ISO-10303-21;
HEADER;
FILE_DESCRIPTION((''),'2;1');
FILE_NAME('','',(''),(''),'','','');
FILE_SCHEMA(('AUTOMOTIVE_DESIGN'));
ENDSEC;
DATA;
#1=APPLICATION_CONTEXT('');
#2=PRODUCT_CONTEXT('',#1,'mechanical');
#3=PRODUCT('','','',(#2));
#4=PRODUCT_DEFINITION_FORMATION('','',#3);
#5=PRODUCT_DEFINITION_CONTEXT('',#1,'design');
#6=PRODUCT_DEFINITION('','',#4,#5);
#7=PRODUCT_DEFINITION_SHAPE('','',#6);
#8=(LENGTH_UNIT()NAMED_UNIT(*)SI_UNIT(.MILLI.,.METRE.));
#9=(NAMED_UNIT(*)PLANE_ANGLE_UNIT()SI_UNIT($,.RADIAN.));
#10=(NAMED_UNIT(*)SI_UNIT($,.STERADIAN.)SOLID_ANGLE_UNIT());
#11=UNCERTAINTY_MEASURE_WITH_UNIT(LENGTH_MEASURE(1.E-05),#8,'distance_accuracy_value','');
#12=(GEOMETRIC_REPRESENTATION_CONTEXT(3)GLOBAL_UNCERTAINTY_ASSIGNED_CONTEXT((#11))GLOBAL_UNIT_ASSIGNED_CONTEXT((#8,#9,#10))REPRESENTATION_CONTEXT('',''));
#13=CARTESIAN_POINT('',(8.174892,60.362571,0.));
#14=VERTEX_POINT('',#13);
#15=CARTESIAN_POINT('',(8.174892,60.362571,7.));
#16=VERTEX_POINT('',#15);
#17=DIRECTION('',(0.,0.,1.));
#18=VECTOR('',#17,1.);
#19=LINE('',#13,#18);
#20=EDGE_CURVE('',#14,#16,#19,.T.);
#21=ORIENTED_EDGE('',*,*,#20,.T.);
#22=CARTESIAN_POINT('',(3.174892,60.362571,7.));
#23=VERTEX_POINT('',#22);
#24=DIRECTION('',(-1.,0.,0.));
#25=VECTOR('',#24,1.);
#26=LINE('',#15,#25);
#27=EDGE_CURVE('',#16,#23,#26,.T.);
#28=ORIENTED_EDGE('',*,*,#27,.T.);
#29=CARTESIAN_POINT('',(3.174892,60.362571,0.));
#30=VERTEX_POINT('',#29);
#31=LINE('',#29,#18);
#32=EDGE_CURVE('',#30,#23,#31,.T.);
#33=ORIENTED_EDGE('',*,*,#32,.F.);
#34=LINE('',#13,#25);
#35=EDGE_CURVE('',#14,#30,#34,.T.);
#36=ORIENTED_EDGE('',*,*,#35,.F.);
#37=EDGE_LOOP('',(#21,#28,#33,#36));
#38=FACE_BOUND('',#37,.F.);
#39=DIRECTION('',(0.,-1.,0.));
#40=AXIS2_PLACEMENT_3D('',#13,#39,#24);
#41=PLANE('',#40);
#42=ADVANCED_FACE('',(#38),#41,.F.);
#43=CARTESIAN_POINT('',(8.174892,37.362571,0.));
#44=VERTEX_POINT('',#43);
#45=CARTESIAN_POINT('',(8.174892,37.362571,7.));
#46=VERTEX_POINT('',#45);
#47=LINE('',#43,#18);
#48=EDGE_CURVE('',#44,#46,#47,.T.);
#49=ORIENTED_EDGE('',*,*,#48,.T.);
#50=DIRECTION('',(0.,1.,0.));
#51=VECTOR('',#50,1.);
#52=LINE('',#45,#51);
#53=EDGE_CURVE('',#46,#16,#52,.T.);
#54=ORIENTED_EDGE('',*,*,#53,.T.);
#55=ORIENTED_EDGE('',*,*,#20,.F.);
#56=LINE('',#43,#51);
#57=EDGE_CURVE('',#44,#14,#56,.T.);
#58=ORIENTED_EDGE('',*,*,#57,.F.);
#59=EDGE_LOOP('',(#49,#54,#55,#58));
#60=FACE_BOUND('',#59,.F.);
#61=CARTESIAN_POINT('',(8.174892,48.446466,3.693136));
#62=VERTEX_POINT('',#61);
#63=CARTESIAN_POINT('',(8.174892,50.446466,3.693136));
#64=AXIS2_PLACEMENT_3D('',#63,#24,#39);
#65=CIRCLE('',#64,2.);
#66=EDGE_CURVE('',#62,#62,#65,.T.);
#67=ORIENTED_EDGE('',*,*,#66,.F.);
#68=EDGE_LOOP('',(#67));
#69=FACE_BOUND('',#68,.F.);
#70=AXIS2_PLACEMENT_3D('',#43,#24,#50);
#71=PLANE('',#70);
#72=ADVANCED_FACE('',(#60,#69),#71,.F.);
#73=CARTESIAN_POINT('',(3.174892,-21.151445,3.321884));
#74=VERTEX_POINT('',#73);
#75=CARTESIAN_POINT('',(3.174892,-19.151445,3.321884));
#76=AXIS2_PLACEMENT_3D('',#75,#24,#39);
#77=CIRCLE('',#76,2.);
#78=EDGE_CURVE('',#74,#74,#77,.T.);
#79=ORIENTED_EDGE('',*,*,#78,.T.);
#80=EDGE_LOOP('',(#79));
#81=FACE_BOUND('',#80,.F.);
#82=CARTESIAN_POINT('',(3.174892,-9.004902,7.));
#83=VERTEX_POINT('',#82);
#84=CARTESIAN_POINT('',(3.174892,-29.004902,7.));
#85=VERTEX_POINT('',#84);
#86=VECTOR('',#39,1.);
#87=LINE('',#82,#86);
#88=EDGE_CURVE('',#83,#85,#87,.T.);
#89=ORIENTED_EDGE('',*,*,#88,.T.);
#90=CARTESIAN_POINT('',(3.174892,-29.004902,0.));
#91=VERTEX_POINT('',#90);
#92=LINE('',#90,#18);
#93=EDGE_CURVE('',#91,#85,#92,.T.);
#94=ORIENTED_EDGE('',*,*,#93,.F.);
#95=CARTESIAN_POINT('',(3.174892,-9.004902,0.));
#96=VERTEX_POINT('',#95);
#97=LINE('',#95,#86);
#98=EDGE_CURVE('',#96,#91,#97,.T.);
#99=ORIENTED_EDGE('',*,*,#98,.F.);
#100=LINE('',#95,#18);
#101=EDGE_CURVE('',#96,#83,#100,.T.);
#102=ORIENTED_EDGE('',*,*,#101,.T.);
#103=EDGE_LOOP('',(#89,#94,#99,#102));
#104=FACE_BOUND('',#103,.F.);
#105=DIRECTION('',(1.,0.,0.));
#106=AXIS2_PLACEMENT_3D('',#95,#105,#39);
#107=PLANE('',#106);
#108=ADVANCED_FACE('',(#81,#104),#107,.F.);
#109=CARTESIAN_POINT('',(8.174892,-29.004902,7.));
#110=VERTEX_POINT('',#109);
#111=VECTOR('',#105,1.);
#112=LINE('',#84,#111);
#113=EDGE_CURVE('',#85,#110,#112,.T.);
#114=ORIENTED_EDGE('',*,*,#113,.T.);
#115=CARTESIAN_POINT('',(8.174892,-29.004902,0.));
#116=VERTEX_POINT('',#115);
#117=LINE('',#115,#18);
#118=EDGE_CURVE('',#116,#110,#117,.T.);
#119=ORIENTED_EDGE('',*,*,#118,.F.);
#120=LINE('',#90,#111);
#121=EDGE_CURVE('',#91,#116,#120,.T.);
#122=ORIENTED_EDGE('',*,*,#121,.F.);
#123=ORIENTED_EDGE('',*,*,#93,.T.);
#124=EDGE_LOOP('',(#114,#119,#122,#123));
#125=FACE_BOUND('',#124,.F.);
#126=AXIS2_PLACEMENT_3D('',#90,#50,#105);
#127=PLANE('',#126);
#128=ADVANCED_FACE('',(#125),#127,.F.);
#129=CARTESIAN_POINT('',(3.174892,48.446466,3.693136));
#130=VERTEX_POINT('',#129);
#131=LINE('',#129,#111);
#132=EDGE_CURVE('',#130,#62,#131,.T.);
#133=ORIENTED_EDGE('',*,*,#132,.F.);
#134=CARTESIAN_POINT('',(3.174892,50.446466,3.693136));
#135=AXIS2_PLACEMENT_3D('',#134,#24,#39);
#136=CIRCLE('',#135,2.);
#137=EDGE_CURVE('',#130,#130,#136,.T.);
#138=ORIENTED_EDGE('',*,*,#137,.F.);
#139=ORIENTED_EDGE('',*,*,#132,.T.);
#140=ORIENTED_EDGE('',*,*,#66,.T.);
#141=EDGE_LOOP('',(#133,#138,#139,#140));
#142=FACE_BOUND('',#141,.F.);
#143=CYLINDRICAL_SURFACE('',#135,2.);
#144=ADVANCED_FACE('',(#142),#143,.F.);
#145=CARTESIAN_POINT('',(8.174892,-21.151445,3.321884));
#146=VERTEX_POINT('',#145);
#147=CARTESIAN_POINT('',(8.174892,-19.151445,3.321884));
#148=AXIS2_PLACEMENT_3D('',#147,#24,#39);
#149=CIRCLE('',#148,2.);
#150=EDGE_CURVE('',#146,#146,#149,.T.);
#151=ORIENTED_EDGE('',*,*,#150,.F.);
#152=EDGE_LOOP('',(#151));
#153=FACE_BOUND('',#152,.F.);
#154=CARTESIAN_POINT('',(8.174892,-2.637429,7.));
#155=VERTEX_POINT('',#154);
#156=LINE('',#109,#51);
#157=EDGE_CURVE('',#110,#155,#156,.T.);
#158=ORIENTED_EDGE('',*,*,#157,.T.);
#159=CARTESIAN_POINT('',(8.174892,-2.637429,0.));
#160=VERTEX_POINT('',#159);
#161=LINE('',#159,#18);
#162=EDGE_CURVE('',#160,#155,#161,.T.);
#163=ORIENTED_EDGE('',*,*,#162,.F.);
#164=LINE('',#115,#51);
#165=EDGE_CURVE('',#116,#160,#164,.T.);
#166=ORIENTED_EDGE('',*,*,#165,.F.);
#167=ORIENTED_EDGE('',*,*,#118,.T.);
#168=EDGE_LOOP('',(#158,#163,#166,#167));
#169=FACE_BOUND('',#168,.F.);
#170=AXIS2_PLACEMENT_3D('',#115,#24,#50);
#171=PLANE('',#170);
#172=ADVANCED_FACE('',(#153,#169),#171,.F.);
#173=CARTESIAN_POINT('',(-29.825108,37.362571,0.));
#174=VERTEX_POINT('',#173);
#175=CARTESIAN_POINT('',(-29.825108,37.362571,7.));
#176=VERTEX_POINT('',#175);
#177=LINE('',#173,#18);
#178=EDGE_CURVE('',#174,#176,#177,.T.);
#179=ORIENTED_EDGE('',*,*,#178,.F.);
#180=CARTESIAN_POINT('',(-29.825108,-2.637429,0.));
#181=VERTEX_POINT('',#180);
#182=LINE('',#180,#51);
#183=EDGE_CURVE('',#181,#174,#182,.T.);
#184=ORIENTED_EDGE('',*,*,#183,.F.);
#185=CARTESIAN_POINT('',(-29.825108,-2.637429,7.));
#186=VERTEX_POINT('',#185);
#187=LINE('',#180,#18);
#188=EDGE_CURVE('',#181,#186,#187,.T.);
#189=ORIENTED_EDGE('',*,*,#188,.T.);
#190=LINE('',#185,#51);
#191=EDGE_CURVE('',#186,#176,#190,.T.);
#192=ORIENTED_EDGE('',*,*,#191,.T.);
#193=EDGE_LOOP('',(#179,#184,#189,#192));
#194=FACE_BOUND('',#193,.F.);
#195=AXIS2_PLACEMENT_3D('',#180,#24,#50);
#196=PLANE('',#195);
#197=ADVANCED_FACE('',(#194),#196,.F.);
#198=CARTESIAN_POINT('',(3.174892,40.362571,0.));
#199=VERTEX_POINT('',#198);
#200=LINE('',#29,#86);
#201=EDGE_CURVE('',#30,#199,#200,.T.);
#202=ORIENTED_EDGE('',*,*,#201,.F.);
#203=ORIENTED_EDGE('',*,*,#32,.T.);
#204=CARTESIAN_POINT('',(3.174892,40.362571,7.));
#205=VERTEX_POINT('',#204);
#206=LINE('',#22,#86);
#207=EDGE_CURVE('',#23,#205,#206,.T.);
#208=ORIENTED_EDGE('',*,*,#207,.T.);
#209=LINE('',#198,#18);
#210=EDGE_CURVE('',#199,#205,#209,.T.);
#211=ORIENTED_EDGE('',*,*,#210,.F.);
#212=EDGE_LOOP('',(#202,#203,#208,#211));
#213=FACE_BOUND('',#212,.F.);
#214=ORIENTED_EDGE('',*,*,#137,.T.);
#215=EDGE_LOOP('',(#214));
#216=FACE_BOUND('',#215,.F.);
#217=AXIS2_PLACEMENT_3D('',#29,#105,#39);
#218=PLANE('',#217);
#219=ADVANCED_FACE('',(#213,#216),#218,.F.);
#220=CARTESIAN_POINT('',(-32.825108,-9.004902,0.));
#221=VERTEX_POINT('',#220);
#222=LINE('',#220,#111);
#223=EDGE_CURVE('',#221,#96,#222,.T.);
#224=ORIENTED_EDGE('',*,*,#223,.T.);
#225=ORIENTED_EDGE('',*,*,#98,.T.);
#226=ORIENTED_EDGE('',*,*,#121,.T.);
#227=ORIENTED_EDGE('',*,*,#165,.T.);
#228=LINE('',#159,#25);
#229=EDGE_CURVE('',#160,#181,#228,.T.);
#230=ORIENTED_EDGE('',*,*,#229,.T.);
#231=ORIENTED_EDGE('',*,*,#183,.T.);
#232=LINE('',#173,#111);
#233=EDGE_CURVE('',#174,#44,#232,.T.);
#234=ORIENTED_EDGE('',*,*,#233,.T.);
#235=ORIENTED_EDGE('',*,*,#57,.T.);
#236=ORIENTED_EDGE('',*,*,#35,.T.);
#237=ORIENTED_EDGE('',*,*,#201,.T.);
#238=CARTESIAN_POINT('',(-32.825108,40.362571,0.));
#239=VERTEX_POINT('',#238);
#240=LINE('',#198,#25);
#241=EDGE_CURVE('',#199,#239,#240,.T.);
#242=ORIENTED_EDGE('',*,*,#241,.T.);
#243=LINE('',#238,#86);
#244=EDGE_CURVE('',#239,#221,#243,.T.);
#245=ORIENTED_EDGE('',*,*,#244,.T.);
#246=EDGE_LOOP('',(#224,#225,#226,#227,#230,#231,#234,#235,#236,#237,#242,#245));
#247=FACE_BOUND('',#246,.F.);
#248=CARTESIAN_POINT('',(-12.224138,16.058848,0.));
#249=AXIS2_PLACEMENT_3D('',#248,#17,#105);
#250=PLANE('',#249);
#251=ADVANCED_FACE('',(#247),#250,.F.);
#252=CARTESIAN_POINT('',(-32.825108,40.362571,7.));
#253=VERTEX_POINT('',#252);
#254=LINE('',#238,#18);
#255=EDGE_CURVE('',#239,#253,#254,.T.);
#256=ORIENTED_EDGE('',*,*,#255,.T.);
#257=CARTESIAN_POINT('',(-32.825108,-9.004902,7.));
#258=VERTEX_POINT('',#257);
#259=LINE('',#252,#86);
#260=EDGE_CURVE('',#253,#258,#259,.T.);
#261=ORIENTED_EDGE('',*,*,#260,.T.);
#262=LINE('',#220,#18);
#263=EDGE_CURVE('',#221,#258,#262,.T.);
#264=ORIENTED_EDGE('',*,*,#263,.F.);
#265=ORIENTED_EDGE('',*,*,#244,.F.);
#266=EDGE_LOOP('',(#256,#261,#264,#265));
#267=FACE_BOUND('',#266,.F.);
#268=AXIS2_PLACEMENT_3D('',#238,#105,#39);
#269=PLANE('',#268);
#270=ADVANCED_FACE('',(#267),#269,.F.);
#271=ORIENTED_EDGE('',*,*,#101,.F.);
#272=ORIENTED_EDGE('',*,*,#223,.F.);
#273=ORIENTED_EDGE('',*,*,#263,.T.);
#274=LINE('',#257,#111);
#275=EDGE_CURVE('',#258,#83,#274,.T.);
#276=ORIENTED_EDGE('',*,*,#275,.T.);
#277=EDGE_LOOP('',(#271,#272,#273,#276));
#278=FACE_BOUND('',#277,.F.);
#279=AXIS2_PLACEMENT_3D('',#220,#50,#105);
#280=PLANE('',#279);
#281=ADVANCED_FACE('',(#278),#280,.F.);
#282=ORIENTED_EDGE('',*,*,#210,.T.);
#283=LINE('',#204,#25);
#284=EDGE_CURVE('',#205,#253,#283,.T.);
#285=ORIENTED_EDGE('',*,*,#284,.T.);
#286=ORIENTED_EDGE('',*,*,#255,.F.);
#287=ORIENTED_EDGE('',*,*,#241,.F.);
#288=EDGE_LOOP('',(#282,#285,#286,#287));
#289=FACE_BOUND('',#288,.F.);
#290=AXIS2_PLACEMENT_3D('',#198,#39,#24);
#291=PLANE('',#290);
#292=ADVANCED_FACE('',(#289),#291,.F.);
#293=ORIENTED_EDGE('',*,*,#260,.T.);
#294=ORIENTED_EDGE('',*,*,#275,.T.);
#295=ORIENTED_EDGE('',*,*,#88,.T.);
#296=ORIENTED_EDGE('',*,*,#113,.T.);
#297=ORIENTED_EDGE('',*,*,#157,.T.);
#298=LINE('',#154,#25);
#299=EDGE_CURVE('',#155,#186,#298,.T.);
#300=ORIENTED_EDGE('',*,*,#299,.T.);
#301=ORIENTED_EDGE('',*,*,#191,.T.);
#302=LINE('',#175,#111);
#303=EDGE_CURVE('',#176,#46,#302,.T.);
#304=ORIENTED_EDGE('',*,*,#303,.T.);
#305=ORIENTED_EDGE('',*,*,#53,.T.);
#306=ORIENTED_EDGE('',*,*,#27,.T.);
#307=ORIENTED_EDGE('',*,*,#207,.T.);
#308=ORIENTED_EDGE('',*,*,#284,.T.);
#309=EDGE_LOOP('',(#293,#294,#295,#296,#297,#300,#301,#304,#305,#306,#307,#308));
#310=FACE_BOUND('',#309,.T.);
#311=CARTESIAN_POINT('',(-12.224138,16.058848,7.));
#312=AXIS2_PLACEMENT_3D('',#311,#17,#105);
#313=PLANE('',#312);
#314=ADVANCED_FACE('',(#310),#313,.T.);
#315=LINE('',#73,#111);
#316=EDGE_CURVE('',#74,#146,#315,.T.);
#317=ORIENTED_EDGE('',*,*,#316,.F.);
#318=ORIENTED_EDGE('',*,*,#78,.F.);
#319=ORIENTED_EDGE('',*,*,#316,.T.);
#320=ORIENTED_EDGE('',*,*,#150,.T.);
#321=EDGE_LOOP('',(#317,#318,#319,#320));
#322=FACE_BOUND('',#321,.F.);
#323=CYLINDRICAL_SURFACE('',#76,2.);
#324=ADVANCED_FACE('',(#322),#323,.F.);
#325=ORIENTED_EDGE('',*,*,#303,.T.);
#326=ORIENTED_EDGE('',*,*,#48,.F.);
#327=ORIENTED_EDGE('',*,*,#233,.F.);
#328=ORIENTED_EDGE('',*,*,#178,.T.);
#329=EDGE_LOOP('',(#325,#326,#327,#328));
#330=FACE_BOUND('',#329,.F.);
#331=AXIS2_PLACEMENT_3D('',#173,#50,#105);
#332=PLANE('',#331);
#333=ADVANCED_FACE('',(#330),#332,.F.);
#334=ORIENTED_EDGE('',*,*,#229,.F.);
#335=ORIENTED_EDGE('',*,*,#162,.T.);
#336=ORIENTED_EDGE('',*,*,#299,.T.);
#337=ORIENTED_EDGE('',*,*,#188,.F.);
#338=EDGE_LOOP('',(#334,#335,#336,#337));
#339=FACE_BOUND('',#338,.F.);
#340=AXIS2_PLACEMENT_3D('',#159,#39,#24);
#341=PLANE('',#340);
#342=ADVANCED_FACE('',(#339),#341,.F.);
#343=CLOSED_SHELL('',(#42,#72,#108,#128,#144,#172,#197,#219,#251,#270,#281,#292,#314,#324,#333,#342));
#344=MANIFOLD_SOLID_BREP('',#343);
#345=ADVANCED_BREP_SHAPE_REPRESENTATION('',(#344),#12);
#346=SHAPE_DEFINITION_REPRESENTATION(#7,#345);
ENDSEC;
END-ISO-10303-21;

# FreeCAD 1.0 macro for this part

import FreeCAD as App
import Part
import Sketcher

V = App.Vector

doc = App.newDocument("Part")
body = doc.addObject("PartDesign::Body", "Body")

sketch1 = body.newObject("Sketcher::SketchObject", "Sketch")
sketch1.AttachmentSupport = (doc.getObject("XY_Plane"), [""])
sketch1.MapMode = "FlatFace"
sketch1.addGeometry(Part.LineSegment(V(3, 60, 0), V(3, 40, 0)), False)
sketch1.addGeometry(Part.LineSegment(V(3, 40, 0), V(-33, 40, 0)), False)
sketch1.addGeometry(Part.LineSegment(V(-33, 40, 0), V(-33, -9, 0)), False)
sketch1.addGeometry(Part.LineSegment(V(-33, -9, 0), V(3, -9, 0)), False)
sketch1.addGeometry(Part.LineSegment(V(3, -9, 0), V(3, -29, 0)), False)
sketch1.addGeometry(Part.LineSegment(V(3, -29, 0), V(8, -29, 0)), False)
sketch1.addGeometry(Part.LineSegment(V(8, -29, 0), V(8, -3, 0)), False)
sketch1.addGeometry(Part.LineSegment(V(8, -3, 0), V(-30, -3, 0)), False)
sketch1.addGeometry(Part.LineSegment(V(-30, -3, 0), V(-30, 37, 0)), False)
sketch1.addGeometry(Part.LineSegment(V(-30, 37, 0), V(8, 37, 0)), False)
sketch1.addGeometry(Part.LineSegment(V(8, 37, 0), V(8, 60, 0)), False)
sketch1.addGeometry(Part.LineSegment(V(8, 60, 0), V(3, 60, 0)), False)
sketch1.addConstraint(Sketcher.Constraint("Coincident", 0, 2, 1, 1))
sketch1.addConstraint(Sketcher.Constraint("Coincident", 1, 2, 2, 1))
sketch1.addConstraint(Sketcher.Constraint("Coincident", 2, 2, 3, 1))
sketch1.addConstraint(Sketcher.Constraint("Coincident", 3, 2, 4, 1))
sketch1.addConstraint(Sketcher.Constraint("Coincident", 4, 2, 5, 1))
sketch1.addConstraint(Sketcher.Constraint("Coincident", 5, 2, 6, 1))
sketch1.addConstraint(Sketcher.Constraint("Coincident", 6, 2, 7, 1))
sketch1.addConstraint(Sketcher.Constraint("Coincident", 7, 2, 8, 1))
sketch1.addConstraint(Sketcher.Constraint("Coincident", 8, 2, 9, 1))
sketch1.addConstraint(Sketcher.Constraint("Coincident", 9, 2, 10, 1))
sketch1.addConstraint(Sketcher.Constraint("Coincident", 10, 2, 11, 1))
sketch1.addConstraint(Sketcher.Constraint("Coincident", 11, 2, 0, 1))
sketch1.addConstraint(Sketcher.Constraint("Vertical", 0))
sketch1.addConstraint(Sketcher.Constraint("Horizontal", 1))
sketch1.addConstraint(Sketcher.Constraint("Vertical", 2))
sketch1.addConstraint(Sketcher.Constraint("Horizontal", 3))
sketch1.addConstraint(Sketcher.Constraint("Vertical", 4))
sketch1.addConstraint(Sketcher.Constraint("Horizontal", 5))
sketch1.addConstraint(Sketcher.Constraint("Vertical", 6))
sketch1.addConstraint(Sketcher.Constraint("Horizontal", 7))
sketch1.addConstraint(Sketcher.Constraint("Vertical", 8))
sketch1.addConstraint(Sketcher.Constraint("Horizontal", 9))
sketch1.addConstraint(Sketcher.Constraint("Vertical", 10))
sketch1.addConstraint(Sketcher.Constraint("Horizontal", 11))
sketch1.addConstraint(Sketcher.Constraint("Vertical", 0, 2, 3, 2))
sketch1.addConstraint(Sketcher.Constraint("Vertical", 6, 2, 9, 2))
sketch1.addConstraint(Sketcher.Constraint("Equal", 0, 4))
sketch1.addConstraint(Sketcher.Constraint("DistanceX", 1, 2, 1, 1, 36.0))
sketch1.addConstraint(Sketcher.Constraint("DistanceX", 5, 1, 5, 2, 5.0))
sketch1.addConstraint(Sketcher.Constraint("DistanceX", 7, 2, 7, 1, 38.0))
sketch1.addConstraint(Sketcher.Constraint("DistanceY", 0, 2, 0, 1, 20.0))
sketch1.addConstraint(Sketcher.Constraint("DistanceY", 8, 1, 8, 2, 40.0))
sketch1.addConstraint(Sketcher.Constraint("DistanceY", 10, 1, 10, 2, 23.0))
sketch1.addConstraint(Sketcher.Constraint("DistanceY", 2, 2, 2, 1, 49.367473))
sketch1.addConstraint(Sketcher.Constraint("DistanceX", -1, 1, 0, 2, 3.174892))
sketch1.addConstraint(Sketcher.Constraint("DistanceY", -1, 1, 0, 2, 40.362571))
pad1 = body.newObject("PartDesign::Pad", "Pad")
pad1.Profile = sketch1
pad1.Length = 7

sketch2 = body.newObject("Sketcher::SketchObject", "Sketch001")
sketch2.AttachmentSupport = (doc.getObject("YZ_Plane"), [""])
sketch2.MapMode = "FlatFace"
sketch2.AttachmentOffset = App.Placement(V(0, 0, 3.174892), App.Rotation())
sketch2.addGeometry(Part.Circle(V(50.4, 3.7, 0), V(0, 0, 1), 2), False)
sketch2.addGeometry(Part.Circle(V(-19.2, 3.3, 0), V(0, 0, 1), 2), False)
sketch2.addConstraint(Sketcher.Constraint("Equal", 0, 1))
sketch2.addConstraint(Sketcher.Constraint("Diameter", 0, 4.0))
sketch2.addConstraint(Sketcher.Constraint("DistanceX", 1, 3, 0, 3, 69.597911))
sketch2.addConstraint(Sketcher.Constraint("DistanceX", -1, 1, 0, 3, 50.446466))
sketch2.addConstraint(Sketcher.Constraint("DistanceY", -1, 1, 0, 3, 3.693136))
sketch2.addConstraint(Sketcher.Constraint("DistanceY", -1, 1, 1, 3, 3.321884))
pocket1 = body.newObject("PartDesign::Pocket", "Pocket")
pocket1.Profile = sketch2
pocket1.Length = 25
pocket1.Reversed = True

doc.recompute()
